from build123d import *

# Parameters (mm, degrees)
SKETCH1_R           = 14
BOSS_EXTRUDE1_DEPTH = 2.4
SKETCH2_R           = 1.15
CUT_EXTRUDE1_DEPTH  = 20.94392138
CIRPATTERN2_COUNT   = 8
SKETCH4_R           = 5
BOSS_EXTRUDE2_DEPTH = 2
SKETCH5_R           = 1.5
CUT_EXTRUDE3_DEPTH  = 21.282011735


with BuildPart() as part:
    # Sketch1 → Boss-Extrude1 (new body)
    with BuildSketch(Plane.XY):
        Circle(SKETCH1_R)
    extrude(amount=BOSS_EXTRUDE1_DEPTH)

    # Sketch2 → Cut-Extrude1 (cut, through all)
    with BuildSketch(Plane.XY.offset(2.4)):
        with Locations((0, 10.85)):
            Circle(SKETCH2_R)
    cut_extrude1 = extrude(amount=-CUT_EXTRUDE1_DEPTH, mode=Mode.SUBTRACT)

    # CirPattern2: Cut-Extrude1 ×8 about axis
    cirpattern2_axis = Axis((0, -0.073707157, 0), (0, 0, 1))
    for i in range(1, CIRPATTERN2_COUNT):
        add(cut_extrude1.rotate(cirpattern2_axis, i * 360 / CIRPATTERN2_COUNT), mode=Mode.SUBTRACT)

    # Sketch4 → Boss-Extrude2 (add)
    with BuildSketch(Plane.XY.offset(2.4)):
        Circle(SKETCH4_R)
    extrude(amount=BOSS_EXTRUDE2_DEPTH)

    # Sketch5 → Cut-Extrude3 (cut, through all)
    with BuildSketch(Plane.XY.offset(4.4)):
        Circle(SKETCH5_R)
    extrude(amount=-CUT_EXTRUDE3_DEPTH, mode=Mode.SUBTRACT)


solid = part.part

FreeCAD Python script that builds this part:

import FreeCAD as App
import Part
import Sketcher

doc = App.newDocument("Part")
body = doc.addObject("PartDesign::Body", "Body")

# Sketch on XY plane
sketch1 = doc.addObject("Sketcher::SketchObject", "Sketch")
body.addObject(sketch1)
sketch1.AttachmentSupport = (doc.XY_Plane, [""])
sketch1.MapMode = "FlatFace"
sketch1.addGeometry(Part.Circle(App.Vector(0, 0, 0), App.Vector(0, 0, 1), 14), False)
sketch1.addConstraint([
    Sketcher.Constraint("Coincident", 0, 3, -1, 1),
    Sketcher.Constraint("Diameter", 0, 28.0),
])
pad1 = doc.addObject("PartDesign::Pad", "Pad")
body.addObject(pad1)
pad1.Profile = sketch1
pad1.Length = 2.4

# Sketch on XY plane
sketch2 = doc.addObject("Sketcher::SketchObject", "Sketch001")
body.addObject(sketch2)
sketch2.AttachmentSupport = (doc.XY_Plane, [""])
sketch2.MapMode = "FlatFace"
sketch2.AttachmentOffset = App.Placement(App.Vector(0, 0, 2.4), App.Rotation())
sketch2.addGeometry(Part.Circle(App.Vector(0, 10.85, 0), App.Vector(0, 0, 1), 1.15), False)
sketch2.addConstraint([
    Sketcher.Constraint("PointOnObject", 0, 3, -2),
    Sketcher.Constraint("Diameter", 0, 2.3),
    Sketcher.Constraint("DistanceY", -1, 1, 0, 3, 10.85),
])
pocket1 = doc.addObject("PartDesign::Pocket", "Pocket")
body.addObject(pocket1)
pocket1.Profile = sketch2
pocket1.Type = "ThroughAll"
doc.recompute()

datumline = doc.addObject("PartDesign::Line", "DatumLine")
body.addObject(datumline)
datumline.Placement = App.Placement(App.Vector(0, -0.073707, 0), App.Rotation(App.Vector(0, 0, 1), App.Vector(0, 0, 1)))
polarpattern = doc.addObject("PartDesign::PolarPattern", "PolarPattern")
body.addObject(polarpattern)
polarpattern.Originals = [pocket1]
polarpattern.Axis = (datumline, [""])
polarpattern.Angle = 360
polarpattern.Occurrences = 8
body.Tip = polarpattern

# Sketch on XY plane
sketch3 = doc.addObject("Sketcher::SketchObject", "Sketch002")
body.addObject(sketch3)
sketch3.AttachmentSupport = (doc.XY_Plane, [""])
sketch3.MapMode = "FlatFace"
sketch3.AttachmentOffset = App.Placement(App.Vector(0, 0, 2.4), App.Rotation())
sketch3.addGeometry(Part.Circle(App.Vector(0, 0, 0), App.Vector(0, 0, 1), 5), False)
sketch3.addConstraint([
    Sketcher.Constraint("Coincident", 0, 3, -1, 1),
    Sketcher.Constraint("Diameter", 0, 10.0),
])
pad2 = doc.addObject("PartDesign::Pad", "Pad001")
body.addObject(pad2)
pad2.Profile = sketch3
pad2.Length = 2

# Sketch on XY plane
sketch4 = doc.addObject("Sketcher::SketchObject", "Sketch003")
body.addObject(sketch4)
sketch4.AttachmentSupport = (doc.XY_Plane, [""])
sketch4.MapMode = "FlatFace"
sketch4.AttachmentOffset = App.Placement(App.Vector(0, 0, 4.4), App.Rotation())
sketch4.addGeometry(Part.Circle(App.Vector(0, 0, 0), App.Vector(0, 0, 1), 1.5), False)
sketch4.addConstraint([
    Sketcher.Constraint("Coincident", 0, 3, -1, 1),
    Sketcher.Constraint("Diameter", 0, 3.0),
])
pocket2 = doc.addObject("PartDesign::Pocket", "Pocket001")
body.addObject(pocket2)
pocket2.Profile = sketch4
pocket2.Type = "ThroughAll"

doc.recompute()
